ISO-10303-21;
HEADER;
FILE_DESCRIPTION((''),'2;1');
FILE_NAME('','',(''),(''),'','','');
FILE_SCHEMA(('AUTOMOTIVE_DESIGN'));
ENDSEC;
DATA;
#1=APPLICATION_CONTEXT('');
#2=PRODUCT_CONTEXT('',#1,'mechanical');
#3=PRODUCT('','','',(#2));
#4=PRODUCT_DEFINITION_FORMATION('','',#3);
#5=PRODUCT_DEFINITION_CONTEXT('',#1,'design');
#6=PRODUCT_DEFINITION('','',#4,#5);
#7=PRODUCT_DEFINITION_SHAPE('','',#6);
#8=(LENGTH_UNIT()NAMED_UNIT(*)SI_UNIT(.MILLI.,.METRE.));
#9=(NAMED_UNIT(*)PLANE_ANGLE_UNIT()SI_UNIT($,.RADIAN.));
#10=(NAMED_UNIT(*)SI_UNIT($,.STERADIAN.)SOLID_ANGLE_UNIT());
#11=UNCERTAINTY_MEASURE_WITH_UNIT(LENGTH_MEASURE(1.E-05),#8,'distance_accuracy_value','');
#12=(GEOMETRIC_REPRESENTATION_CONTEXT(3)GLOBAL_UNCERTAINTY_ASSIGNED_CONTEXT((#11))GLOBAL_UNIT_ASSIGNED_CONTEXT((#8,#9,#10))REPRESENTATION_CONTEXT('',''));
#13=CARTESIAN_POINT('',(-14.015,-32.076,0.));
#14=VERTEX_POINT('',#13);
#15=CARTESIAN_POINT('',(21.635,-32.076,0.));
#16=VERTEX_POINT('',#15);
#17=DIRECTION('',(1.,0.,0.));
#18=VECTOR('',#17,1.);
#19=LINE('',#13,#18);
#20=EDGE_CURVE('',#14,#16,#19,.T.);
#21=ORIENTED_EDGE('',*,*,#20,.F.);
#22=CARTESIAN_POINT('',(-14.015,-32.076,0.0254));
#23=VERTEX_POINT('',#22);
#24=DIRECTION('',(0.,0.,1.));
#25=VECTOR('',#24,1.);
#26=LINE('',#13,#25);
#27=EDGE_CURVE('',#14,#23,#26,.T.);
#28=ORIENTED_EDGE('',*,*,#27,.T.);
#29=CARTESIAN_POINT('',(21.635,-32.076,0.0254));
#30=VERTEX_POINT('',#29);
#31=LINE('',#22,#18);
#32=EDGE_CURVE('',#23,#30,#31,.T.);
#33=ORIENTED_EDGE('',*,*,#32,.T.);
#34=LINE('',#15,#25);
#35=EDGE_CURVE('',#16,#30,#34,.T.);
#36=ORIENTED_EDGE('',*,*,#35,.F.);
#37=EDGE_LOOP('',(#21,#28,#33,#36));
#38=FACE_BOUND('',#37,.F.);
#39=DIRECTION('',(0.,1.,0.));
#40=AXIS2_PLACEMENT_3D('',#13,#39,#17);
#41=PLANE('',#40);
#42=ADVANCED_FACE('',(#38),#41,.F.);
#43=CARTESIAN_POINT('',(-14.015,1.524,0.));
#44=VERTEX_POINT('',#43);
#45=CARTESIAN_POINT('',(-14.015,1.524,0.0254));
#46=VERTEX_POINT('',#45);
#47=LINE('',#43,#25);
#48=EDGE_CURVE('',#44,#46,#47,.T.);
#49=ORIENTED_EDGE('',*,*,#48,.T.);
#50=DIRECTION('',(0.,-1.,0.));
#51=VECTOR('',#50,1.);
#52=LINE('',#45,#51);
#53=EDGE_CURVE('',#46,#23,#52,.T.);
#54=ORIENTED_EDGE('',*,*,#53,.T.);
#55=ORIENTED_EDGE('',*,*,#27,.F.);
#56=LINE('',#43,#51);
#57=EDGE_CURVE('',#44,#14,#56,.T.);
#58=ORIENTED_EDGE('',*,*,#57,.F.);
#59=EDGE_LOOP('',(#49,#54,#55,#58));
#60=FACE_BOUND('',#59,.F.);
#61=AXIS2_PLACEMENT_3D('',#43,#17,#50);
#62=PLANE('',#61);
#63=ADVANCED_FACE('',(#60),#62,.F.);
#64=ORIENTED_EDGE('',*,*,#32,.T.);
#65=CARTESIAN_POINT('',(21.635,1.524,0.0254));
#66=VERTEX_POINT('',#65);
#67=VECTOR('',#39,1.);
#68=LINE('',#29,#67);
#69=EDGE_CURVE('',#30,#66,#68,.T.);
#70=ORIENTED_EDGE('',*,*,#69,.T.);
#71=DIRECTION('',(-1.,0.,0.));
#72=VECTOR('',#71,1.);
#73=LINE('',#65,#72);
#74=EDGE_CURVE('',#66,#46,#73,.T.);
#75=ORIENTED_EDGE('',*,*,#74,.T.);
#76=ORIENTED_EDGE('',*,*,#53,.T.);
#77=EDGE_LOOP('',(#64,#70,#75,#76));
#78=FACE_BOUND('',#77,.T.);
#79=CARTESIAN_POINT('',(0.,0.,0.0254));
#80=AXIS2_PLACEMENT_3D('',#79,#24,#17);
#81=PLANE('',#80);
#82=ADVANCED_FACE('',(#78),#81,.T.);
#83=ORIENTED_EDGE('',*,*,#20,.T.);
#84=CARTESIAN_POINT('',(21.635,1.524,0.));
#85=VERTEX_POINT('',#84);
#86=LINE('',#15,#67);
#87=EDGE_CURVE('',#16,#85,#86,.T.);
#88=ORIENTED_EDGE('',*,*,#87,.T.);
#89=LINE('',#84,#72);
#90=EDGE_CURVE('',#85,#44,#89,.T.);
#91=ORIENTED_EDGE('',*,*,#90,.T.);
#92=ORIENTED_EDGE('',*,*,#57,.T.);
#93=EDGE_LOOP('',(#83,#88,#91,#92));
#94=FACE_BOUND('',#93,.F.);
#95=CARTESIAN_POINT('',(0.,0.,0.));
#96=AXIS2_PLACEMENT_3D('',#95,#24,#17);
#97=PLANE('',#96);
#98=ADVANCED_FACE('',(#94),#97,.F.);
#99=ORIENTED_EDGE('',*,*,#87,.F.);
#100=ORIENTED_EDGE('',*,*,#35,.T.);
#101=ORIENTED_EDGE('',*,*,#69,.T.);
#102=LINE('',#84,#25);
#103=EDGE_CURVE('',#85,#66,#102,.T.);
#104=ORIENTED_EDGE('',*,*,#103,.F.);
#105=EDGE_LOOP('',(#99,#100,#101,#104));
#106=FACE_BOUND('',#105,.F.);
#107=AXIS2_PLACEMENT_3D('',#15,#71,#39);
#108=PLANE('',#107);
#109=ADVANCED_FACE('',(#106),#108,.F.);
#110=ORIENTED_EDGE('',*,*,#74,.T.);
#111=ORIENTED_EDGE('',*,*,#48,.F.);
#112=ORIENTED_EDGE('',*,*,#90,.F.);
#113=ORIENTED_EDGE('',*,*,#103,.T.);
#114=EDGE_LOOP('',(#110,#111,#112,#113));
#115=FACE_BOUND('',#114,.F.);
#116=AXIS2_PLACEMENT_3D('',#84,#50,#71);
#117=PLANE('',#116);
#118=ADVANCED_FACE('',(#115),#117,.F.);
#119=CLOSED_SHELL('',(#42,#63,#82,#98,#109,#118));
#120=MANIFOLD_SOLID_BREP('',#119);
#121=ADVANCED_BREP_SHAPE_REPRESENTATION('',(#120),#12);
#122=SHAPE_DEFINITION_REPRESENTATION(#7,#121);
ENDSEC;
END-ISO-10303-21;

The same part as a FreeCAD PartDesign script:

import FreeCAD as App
import Part
import Sketcher


def add_polygon(sketch, points):
    """Adds a closed chain of lines whose ends are joined by coincident constraints."""
    first, n = sketch.GeometryCount, len(points)
    for a, b in zip(points, points[1:] + points[:1]):
        sketch.addGeometry(Part.LineSegment(App.Vector(*a, 0), App.Vector(*b, 0)), False)
    for i in range(n):
        sketch.addConstraint(Sketcher.Constraint("Coincident", first + i, 2, first + (i + 1) % n, 1))

doc = App.newDocument("Part")
body = doc.addObject("PartDesign::Body", "Body")

sketch1 = body.newObject("Sketcher::SketchObject", "Sketch")
sketch1.AttachmentSupport = (doc.getObject("XY_Plane"), [""])
sketch1.MapMode = "FlatFace"
add_polygon(sketch1, [(-14.015, 1.524), (-14.015, -32.076), (21.635, -32.076), (21.635, 1.524)])
sketch1.addConstraint(Sketcher.Constraint("Vertical", 0))
sketch1.addConstraint(Sketcher.Constraint("Horizontal", 1))
sketch1.addConstraint(Sketcher.Constraint("Vertical", 2))
sketch1.addConstraint(Sketcher.Constraint("Horizontal", 3))
sketch1.addConstraint(Sketcher.Constraint("DistanceY", 0, 2, 0, 1, 33.6))
sketch1.addConstraint(Sketcher.Constraint("DistanceX", 1, 1, 1, 2, 35.65))
sketch1.addConstraint(Sketcher.Constraint("DistanceX", 0, 2, -1, 1, 14.015))
sketch1.addConstraint(Sketcher.Constraint("DistanceY", 0, 2, -1, 1, 32.076))
pad1 = body.newObject("PartDesign::Pad", "Pad")
pad1.Profile = sketch1
pad1.Length = 0.0254

doc.recompute()
